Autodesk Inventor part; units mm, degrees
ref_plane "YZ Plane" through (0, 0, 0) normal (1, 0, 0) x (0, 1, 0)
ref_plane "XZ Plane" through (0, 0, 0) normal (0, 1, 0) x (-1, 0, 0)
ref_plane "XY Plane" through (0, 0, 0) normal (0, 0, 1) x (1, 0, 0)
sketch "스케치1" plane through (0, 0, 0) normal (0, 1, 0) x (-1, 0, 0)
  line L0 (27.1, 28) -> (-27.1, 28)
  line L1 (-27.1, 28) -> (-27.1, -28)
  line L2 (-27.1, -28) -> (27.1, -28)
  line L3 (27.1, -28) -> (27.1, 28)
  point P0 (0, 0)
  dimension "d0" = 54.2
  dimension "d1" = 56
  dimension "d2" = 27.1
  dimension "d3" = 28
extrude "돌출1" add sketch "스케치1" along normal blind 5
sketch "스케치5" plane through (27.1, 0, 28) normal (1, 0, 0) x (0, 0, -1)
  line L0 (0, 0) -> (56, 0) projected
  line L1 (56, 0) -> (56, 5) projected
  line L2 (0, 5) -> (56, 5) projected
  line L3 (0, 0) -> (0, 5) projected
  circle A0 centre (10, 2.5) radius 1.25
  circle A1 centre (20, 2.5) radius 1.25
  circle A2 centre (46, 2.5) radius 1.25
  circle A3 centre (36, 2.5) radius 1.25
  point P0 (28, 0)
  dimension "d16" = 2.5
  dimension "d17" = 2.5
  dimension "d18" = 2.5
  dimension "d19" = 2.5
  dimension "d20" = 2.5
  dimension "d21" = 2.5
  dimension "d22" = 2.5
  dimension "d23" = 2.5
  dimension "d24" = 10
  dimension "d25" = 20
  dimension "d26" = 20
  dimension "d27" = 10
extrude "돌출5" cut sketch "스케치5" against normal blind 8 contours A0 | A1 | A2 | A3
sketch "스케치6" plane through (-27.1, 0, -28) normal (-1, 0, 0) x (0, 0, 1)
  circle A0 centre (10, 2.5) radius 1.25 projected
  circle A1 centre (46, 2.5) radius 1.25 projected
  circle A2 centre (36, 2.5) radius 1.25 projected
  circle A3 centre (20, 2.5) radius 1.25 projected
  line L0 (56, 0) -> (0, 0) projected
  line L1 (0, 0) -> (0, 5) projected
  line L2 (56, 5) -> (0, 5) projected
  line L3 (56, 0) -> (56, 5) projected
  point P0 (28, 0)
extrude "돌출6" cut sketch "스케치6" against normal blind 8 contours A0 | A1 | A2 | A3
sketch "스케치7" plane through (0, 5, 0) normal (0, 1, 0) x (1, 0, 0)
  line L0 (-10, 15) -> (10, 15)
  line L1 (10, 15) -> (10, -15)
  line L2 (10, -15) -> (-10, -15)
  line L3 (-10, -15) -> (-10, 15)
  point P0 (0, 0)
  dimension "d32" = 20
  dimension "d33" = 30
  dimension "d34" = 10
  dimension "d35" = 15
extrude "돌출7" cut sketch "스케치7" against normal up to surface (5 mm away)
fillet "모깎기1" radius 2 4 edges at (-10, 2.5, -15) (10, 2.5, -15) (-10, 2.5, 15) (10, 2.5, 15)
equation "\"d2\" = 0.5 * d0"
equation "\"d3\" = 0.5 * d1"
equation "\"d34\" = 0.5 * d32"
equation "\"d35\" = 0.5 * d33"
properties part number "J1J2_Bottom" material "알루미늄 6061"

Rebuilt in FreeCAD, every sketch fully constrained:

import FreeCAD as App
import Part
import Sketcher
Q = App.Units.Quantity


def edges_at(feature, points):
    """Names of the edges that pass closest to the given points."""
    edges = feature.Shape.Edges
    near = lambda p: min(range(len(edges)), key=lambda i: edges[i].distToShape(Part.Vertex(*p))[0])
    return sorted({f"Edge{near(p) + 1}" for p in points})


def add_polygon(sketch, points):
    """Adds a closed chain of lines whose ends are joined by coincident constraints."""
    first, n = sketch.GeometryCount, len(points)
    for a, b in zip(points, points[1:] + points[:1]):
        sketch.addGeometry(Part.LineSegment(App.Vector(*a, 0), App.Vector(*b, 0)), False)
    for i in range(n):
        sketch.addConstraint(Sketcher.Constraint("Coincident", first + i, 2, first + (i + 1) % n, 1))

doc = App.newDocument("Part")
body = doc.addObject("PartDesign::Body", "Body")

# Sketch on XZ plane
sketch1 = body.newObject("Sketcher::SketchObject", "Sketch")
sketch1.AttachmentSupport = (doc.getObject("XZ_Plane"), [""])
sketch1.MapMode = "FlatFace"
add_polygon(sketch1, [(-27.1, -28), (-27.1, 28), (27.1, 28), (27.1, -28)])  # lines 0-3
sketch1.addConstraint(Sketcher.Constraint("Vertical", 0))
sketch1.addConstraint(Sketcher.Constraint("Horizontal", 1))
sketch1.addConstraint(Sketcher.Constraint("Vertical", 2))
sketch1.addConstraint(Sketcher.Constraint("Horizontal", 3))
sketch1.addConstraint(Sketcher.Constraint("Symmetric", 0, 2, 2, 2, -1, 1))
sketch1.addConstraint(Sketcher.Constraint("DistanceY", 0, 1, 0, 2, Q("56 mm")))
sketch1.addConstraint(Sketcher.Constraint("DistanceX", 1, 1, 1, 2, Q("54.2 mm")))
pad1 = body.newObject("PartDesign::Pad", "Pad")
pad1.Profile = sketch1
pad1.Length = 5
pad1.Reversed = True

# Sketch on YZ plane
sketch2 = body.newObject("Sketcher::SketchObject", "Sketch001")
sketch2.AttachmentSupport = (doc.getObject("YZ_Plane"), [""])
sketch2.MapMode = "FlatFace"
sketch2.AttachmentOffset = App.Placement(App.Vector(0, 0, 27.1), App.Rotation())
sketch2.addGeometry(Part.Circle(App.Vector(2.5, 18, 0), App.Vector(0, 0, 1), 1.25), False)
sketch2.addGeometry(Part.Circle(App.Vector(2.5, 8, 0), App.Vector(0, 0, 1), 1.25), False)
sketch2.addGeometry(Part.Circle(App.Vector(2.5, -18, 0), App.Vector(0, 0, 1), 1.25), False)
sketch2.addGeometry(Part.Circle(App.Vector(2.5, -8, 0), App.Vector(0, 0, 1), 1.25), False)
sketch2.addConstraint(Sketcher.Constraint("Equal", 0, 1))
sketch2.addConstraint(Sketcher.Constraint("Equal", 1, 2))
sketch2.addConstraint(Sketcher.Constraint("Equal", 2, 3))
sketch2.addConstraint(Sketcher.Constraint("Symmetric", 0, 3, 2, 3, -1))
sketch2.addConstraint(Sketcher.Constraint("Symmetric", 1, 3, 3, 3, -1))
sketch2.addConstraint(Sketcher.Constraint("Vertical", 0, 3, 1, 3))
sketch2.addConstraint(Sketcher.Constraint("Diameter", 0, Q("2.5 mm")))
sketch2.addConstraint(Sketcher.Constraint("DistanceY", 1, 3, 0, 3, Q("10 mm")))
sketch2.addConstraint(Sketcher.Constraint("DistanceX", -1, 1, 0, 3, Q("2.5 mm")))
sketch2.addConstraint(Sketcher.Constraint("DistanceY", -1, 1, 0, 3, Q("18 mm")))
pocket1 = body.newObject("PartDesign::Pocket", "Pocket")
pocket1.Profile = sketch2
pocket1.Length = 8

# Sketch on YZ plane
sketch3 = body.newObject("Sketcher::SketchObject", "Sketch002")
sketch3.AttachmentSupport = (doc.getObject("YZ_Plane"), [""])
sketch3.MapMode = "FlatFace"
sketch3.AttachmentOffset = App.Placement(App.Vector(0, 0, -27.1), App.Rotation())
sketch3.addGeometry(Part.Circle(App.Vector(2.5, -18, 0), App.Vector(0, 0, 1), 1.25), False)
sketch3.addGeometry(Part.Circle(App.Vector(2.5, 18, 0), App.Vector(0, 0, 1), 1.25), False)
sketch3.addGeometry(Part.Circle(App.Vector(2.5, 8, 0), App.Vector(0, 0, 1), 1.25), False)
sketch3.addGeometry(Part.Circle(App.Vector(2.5, -8, 0), App.Vector(0, 0, 1), 1.25), False)
sketch3.addConstraint(Sketcher.Constraint("Equal", 0, 1))
sketch3.addConstraint(Sketcher.Constraint("Equal", 1, 2))
sketch3.addConstraint(Sketcher.Constraint("Equal", 2, 3))
sketch3.addConstraint(Sketcher.Constraint("Symmetric", 0, 3, 1, 3, -1))
sketch3.addConstraint(Sketcher.Constraint("Symmetric", 2, 3, 3, 3, -1))
sketch3.addConstraint(Sketcher.Constraint("Vertical", 1, 3, 2, 3))
sketch3.addConstraint(Sketcher.Constraint("Diameter", 0, Q("2.5 mm")))
sketch3.addConstraint(Sketcher.Constraint("DistanceY", 0, 3, -1, 1, Q("18 mm")))
sketch3.addConstraint(Sketcher.Constraint("DistanceY", -1, 1, 2, 3, Q("8 mm")))
sketch3.addConstraint(Sketcher.Constraint("DistanceX", -1, 1, 0, 3, Q("2.5 mm")))
pocket2 = body.newObject("PartDesign::Pocket", "Pocket001")
pocket2.Profile = sketch3
pocket2.Length = 8
pocket2.Reversed = True

# Sketch on XZ plane
sketch4 = body.newObject("Sketcher::SketchObject", "Sketch003")
sketch4.AttachmentSupport = (doc.getObject("XZ_Plane"), [""])
sketch4.MapMode = "FlatFace"
sketch4.AttachmentOffset = App.Placement(App.Vector(0, 0, -5), App.Rotation())
add_polygon(sketch4, [(10, -15), (-10, -15), (-10, 15), (10, 15)])  # lines 0-3
sketch4.addConstraint(Sketcher.Constraint("Horizontal", 0))
sketch4.addConstraint(Sketcher.Constraint("Vertical", 1))
sketch4.addConstraint(Sketcher.Constraint("Horizontal", 2))
sketch4.addConstraint(Sketcher.Constraint("Vertical", 3))
sketch4.addConstraint(Sketcher.Constraint("Symmetric", 0, 2, 2, 2, -1, 1))
sketch4.addConstraint(Sketcher.Constraint("DistanceX", 0, 2, 0, 1, Q("20 mm")))
sketch4.addConstraint(Sketcher.Constraint("DistanceY", 1, 1, 1, 2, Q("30 mm")))
pocket3 = body.newObject("PartDesign::Pocket", "Pocket002")
pocket3.Profile = sketch4
pocket3.Length = 5
pocket3.Reversed = True
doc.recompute()

fillet = body.newObject("PartDesign::Fillet", "Fillet")
fillet.Base = (pocket3, edges_at(pocket3, [
    (-10, 2.5, -15),
    (10, 2.5, -15),
    (-10, 2.5, 15),
    (10, 2.5, 15),
]))
fillet.Radius = 2

doc.recompute()
